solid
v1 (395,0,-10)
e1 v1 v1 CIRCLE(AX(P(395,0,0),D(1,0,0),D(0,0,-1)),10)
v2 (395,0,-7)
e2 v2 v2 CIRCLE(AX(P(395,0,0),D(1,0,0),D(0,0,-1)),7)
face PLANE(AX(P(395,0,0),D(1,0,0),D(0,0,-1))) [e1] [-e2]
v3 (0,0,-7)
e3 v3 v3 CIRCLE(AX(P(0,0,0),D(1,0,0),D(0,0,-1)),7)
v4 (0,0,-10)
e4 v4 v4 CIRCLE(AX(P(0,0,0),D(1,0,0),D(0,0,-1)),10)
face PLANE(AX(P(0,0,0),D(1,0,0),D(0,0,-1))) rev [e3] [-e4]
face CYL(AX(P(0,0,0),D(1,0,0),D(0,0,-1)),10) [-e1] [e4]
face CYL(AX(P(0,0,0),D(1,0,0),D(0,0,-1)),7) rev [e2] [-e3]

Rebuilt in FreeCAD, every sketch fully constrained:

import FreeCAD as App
import Part
import Sketcher
from FreeCAD import Vector

doc = App.newDocument("Part")
body = doc.addObject("PartDesign::Body", "Body")

# Sketch on YZ plane
sketch1 = body.newObject("Sketcher::SketchObject", "Sketch")
sketch1.AttachmentSupport = (doc.getObject("YZ_Plane"), [""])
sketch1.MapMode = "FlatFace"
sketch1.addGeometry(Part.Circle(Vector(0, 0, 0), Vector(0, 0, 1), 10), False)
sketch1.addGeometry(Part.Circle(Vector(0, 0, 0), Vector(0, 0, 1), 7), False)
sketch1.addConstraint(Sketcher.Constraint("Coincident", 0, 3, -1, 1))
sketch1.addConstraint(Sketcher.Constraint("Coincident", 1, 3, -1, 1))
sketch1.addConstraint(Sketcher.Constraint("Diameter", 0, 20.0))
sketch1.addConstraint(Sketcher.Constraint("Diameter", 1, 14.0))

# Sketch on XY plane
sketch2 = body.newObject("Sketcher::SketchObject", "Sketch001")
sketch2.AttachmentSupport = (doc.getObject("XY_Plane"), [""])
sketch2.MapMode = "FlatFace"
sketch2.addGeometry(Part.LineSegment(Vector(0, 0, 0), Vector(395, 0, 0)), False)
sketch2.addConstraint(Sketcher.Constraint("Horizontal", 0))
sketch2.addConstraint(Sketcher.Constraint("Coincident", 0, 1, -1, 1))
sketch2.addConstraint(Sketcher.Constraint("DistanceX", 0, 1, 0, 2, 395.0))
doc.recompute()

additivepipe = body.newObject("PartDesign::AdditivePipe", "AdditivePipe")
additivepipe.Profile = sketch1
additivepipe.Spine = (sketch2, ["Edge1"])

doc.recompute()
